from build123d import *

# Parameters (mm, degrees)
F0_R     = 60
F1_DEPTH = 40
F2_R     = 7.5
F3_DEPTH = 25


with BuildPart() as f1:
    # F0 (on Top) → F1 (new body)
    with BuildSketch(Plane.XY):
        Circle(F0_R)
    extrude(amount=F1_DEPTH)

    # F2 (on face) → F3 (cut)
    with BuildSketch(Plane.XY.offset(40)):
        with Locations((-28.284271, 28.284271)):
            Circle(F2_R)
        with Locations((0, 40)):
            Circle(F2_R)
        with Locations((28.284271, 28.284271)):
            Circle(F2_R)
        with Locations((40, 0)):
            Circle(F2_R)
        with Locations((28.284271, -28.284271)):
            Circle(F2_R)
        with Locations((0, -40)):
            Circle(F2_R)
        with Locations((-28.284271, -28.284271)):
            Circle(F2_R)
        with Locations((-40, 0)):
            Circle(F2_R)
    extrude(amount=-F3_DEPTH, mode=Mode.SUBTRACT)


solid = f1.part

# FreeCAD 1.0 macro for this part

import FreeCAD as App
import Part
import Sketcher

doc = App.newDocument("Part")
body = doc.addObject("PartDesign::Body", "Body")

sketch1 = body.newObject("Sketcher::SketchObject", "Sketch")
sketch1.AttachmentSupport = (doc.getObject("XY_Plane"), [""])
sketch1.MapMode = "FlatFace"
sketch1.addGeometry(Part.Circle(App.Vector(0, 0, 0), App.Vector(0, 0, 1), 60), False)
sketch1.addConstraint(Sketcher.Constraint("Coincident", 0, 3, -1, 1))
sketch1.addConstraint(Sketcher.Constraint("Diameter", 0, 120.0))
pad1 = body.newObject("PartDesign::Pad", "Pad")
pad1.Profile = sketch1
pad1.Length = 40

sketch2 = body.newObject("Sketcher::SketchObject", "Sketch001")
sketch2.AttachmentSupport = (doc.getObject("XY_Plane"), [""])
sketch2.MapMode = "FlatFace"
sketch2.AttachmentOffset = App.Placement(App.Vector(0, 0, 40), App.Rotation())
sketch2.addGeometry(Part.Circle(App.Vector(-28.284271, 28.284271, 0), App.Vector(0, 0, 1), 7.5), False)
sketch2.addGeometry(Part.Circle(App.Vector(0, 40, 0), App.Vector(0, 0, 1), 7.5), False)
sketch2.addGeometry(Part.Circle(App.Vector(28.284271, 28.284271, 0), App.Vector(0, 0, 1), 7.5), False)
sketch2.addGeometry(Part.Circle(App.Vector(40, 0, 0), App.Vector(0, 0, 1), 7.5), False)
sketch2.addGeometry(Part.Circle(App.Vector(28.284271, -28.284271, 0), App.Vector(0, 0, 1), 7.5), False)
sketch2.addGeometry(Part.Circle(App.Vector(0, -40, 0), App.Vector(0, 0, 1), 7.5), False)
sketch2.addGeometry(Part.Circle(App.Vector(-28.284271, -28.284271, 0), App.Vector(0, 0, 1), 7.5), False)
sketch2.addGeometry(Part.Circle(App.Vector(-40, 0, 0), App.Vector(0, 0, 1), 7.5), False)
sketch2.addConstraint(Sketcher.Constraint("Equal", 0, 1))
sketch2.addConstraint(Sketcher.Constraint("Equal", 1, 2))
sketch2.addConstraint(Sketcher.Constraint("Equal", 2, 3))
sketch2.addConstraint(Sketcher.Constraint("Equal", 3, 4))
sketch2.addConstraint(Sketcher.Constraint("Equal", 4, 5))
sketch2.addConstraint(Sketcher.Constraint("Equal", 5, 6))
sketch2.addConstraint(Sketcher.Constraint("Equal", 6, 7))
sketch2.addConstraint(Sketcher.Constraint("Symmetric", 0, 3, 4, 3, -1, 1))
sketch2.addConstraint(Sketcher.Constraint("Symmetric", 1, 3, 5, 3, -1, 1))
sketch2.addConstraint(Sketcher.Constraint("Symmetric", 2, 3, 6, 3, -1, 1))
sketch2.addConstraint(Sketcher.Constraint("Symmetric", 3, 3, 7, 3, -1, 1))
sketch2.addConstraint(Sketcher.Constraint("Symmetric", 0, 3, 2, 3, -2))
sketch2.addConstraint(Sketcher.Constraint("PointOnObject", 1, 3, -2))
sketch2.addConstraint(Sketcher.Constraint("PointOnObject", 3, 3, -1))
sketch2.addConstraint(Sketcher.Constraint("Diameter", 0, 15.0))
sketch2.addConstraint(Sketcher.Constraint("DistanceY", -1, 1, 1, 3, 40.0))
sketch2.addConstraint(Sketcher.Constraint("DistanceX", -1, 1, 3, 3, 40.0))
sketch2.addConstraint(Sketcher.Constraint("DistanceX", 0, 3, -1, 1, 28.284271))
sketch2.addConstraint(Sketcher.Constraint("DistanceY", -1, 1, 0, 3, 28.284271))
pocket1 = body.newObject("PartDesign::Pocket", "Pocket")
pocket1.Profile = sketch2
pocket1.Length = 25

doc.recompute()
